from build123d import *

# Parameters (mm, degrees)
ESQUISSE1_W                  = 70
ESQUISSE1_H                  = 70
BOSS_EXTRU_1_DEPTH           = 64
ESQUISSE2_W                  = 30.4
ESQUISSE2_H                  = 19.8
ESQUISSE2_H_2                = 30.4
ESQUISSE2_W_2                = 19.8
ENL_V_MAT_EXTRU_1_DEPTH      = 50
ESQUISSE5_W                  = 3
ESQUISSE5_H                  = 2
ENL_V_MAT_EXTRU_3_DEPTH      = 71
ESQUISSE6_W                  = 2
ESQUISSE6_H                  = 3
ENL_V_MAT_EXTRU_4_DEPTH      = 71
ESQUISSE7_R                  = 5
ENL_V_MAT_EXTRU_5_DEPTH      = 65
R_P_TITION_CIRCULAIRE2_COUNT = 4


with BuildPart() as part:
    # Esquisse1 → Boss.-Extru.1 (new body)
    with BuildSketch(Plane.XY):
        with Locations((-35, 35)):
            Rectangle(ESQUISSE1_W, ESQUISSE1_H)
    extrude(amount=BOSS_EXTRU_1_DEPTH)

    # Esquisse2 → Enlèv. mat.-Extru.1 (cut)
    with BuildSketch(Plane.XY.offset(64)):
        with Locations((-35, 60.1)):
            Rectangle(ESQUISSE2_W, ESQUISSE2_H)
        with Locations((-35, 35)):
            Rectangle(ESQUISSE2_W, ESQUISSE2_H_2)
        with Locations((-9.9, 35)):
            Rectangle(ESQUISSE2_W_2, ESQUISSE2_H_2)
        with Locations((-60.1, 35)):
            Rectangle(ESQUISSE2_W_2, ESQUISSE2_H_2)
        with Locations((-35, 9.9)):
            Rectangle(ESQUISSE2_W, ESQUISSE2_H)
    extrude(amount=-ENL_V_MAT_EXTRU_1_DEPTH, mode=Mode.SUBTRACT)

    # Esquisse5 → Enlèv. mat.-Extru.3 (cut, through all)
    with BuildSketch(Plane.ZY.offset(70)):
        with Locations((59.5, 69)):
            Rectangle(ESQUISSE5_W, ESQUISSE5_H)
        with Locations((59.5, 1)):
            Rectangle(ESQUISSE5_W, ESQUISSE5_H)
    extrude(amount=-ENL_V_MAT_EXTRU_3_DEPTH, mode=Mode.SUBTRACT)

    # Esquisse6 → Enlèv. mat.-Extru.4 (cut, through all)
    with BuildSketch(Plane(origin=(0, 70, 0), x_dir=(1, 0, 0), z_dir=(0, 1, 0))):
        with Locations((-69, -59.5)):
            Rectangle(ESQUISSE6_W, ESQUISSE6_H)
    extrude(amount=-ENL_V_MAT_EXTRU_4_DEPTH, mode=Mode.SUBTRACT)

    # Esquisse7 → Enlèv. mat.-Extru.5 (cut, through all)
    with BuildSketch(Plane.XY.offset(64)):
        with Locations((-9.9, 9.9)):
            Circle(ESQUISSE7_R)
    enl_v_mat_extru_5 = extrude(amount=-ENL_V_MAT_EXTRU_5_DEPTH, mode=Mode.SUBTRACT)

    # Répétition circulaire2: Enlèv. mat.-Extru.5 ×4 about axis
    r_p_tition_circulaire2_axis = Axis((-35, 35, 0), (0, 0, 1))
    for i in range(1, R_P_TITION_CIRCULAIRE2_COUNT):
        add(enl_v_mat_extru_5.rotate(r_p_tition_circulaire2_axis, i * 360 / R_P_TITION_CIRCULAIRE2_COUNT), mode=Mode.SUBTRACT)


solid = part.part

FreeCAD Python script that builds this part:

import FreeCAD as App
import Part
import Sketcher
from FreeCAD import Vector


def add_polygon(sketch, points):
    """Adds a closed chain of lines whose ends are joined by coincident constraints."""
    first, n = sketch.GeometryCount, len(points)
    for a, b in zip(points, points[1:] + points[:1]):
        sketch.addGeometry(Part.LineSegment(App.Vector(*a, 0), App.Vector(*b, 0)), False)
    for i in range(n):
        sketch.addConstraint(Sketcher.Constraint("Coincident", first + i, 2, first + (i + 1) % n, 1))

doc = App.newDocument("Part")
body = doc.addObject("PartDesign::Body", "Body")

# Sketch on XY plane
sketch1 = doc.addObject("Sketcher::SketchObject", "Sketch")
body.addObject(sketch1)
sketch1.AttachmentSupport = (doc.XY_Plane, [""])
sketch1.MapMode = "FlatFace"
add_polygon(sketch1, [(-70, 70), (-70, 0), (0, 0), (0, 70)])  # lines 0-3
sketch1.addConstraint([
    Sketcher.Constraint("Vertical", 0),
    Sketcher.Constraint("Horizontal", 1),
    Sketcher.Constraint("Vertical", 2),
    Sketcher.Constraint("Horizontal", 3),
    Sketcher.Constraint("Coincident", 1, 2, -1, 1),
    Sketcher.Constraint("Equal", 3, 0),
    Sketcher.Constraint("DistanceX", 1, 1, 1, 2, 70.0),
])
pad1 = doc.addObject("PartDesign::Pad", "Pad")
body.addObject(pad1)
pad1.Profile = sketch1
pad1.Length = 64

# Sketch on XY plane
sketch2 = doc.addObject("Sketcher::SketchObject", "Sketch001")
body.addObject(sketch2)
sketch2.AttachmentSupport = (doc.XY_Plane, [""])
sketch2.MapMode = "FlatFace"
sketch2.AttachmentOffset = App.Placement(Vector(0, 0, 64), App.Rotation())
add_polygon(sketch2, [(-50.2, 70), (-50.2, 50.2), (-70, 50.2), (-70, 19.8), (-50.2, 19.8), (-50.2, 0), (-19.8, 0), (-19.8, 19.8), (0, 19.8), (0, 50.2), (-19.8, 50.2), (-19.8, 70)])  # lines 0-11
sketch2.addConstraint([
    Sketcher.Constraint("Vertical", 0),
    Sketcher.Constraint("Horizontal", 1),
    Sketcher.Constraint("Vertical", 2),
    Sketcher.Constraint("Horizontal", 3),
    Sketcher.Constraint("Vertical", 4),
    Sketcher.Constraint("Horizontal", 5),
    Sketcher.Constraint("Vertical", 6),
    Sketcher.Constraint("Horizontal", 7),
    Sketcher.Constraint("Vertical", 8),
    Sketcher.Constraint("Horizontal", 9),
    Sketcher.Constraint("Vertical", 10),
    Sketcher.Constraint("Horizontal", 11),
    Sketcher.Constraint("PointOnObject", 4, 2, -1),
    Sketcher.Constraint("PointOnObject", 7, 2, -2),
    Sketcher.Constraint("Horizontal", 3, 2, 6, 2),
    Sketcher.Constraint("Horizontal", 1, 2, 8, 2),
    Sketcher.Constraint("Vertical", 0, 2, 3, 2),
    Sketcher.Constraint("Vertical", 6, 2, 9, 2),
    Sketcher.Constraint("Equal", 3, 7),
    Sketcher.Constraint("Equal", 9, 0),
    Sketcher.Constraint("Equal", 11, 2),
    Sketcher.Constraint("Equal", 0, 4),
    Sketcher.Constraint("DistanceX", 1, 2, 1, 1, 19.8),
    Sketcher.Constraint("DistanceX", 5, 1, 5, 2, 30.4),
])
pocket1 = doc.addObject("PartDesign::Pocket", "Pocket")
body.addObject(pocket1)
pocket1.Profile = sketch2
pocket1.Length = 50

# Sketch on YZ plane
sketch3 = doc.addObject("Sketcher::SketchObject", "Sketch002")
body.addObject(sketch3)
sketch3.AttachmentSupport = (doc.YZ_Plane, [""])
sketch3.MapMode = "FlatFace"
sketch3.AttachmentOffset = App.Placement(Vector(0, 0, -70), App.Rotation())
add_polygon(sketch3, [(70, 58), (68, 58), (68, 61), (70, 61)])  # lines 0-3
add_polygon(sketch3, [(2, 58), (0, 58), (0, 61), (2, 61)])  # lines 4-7
sketch3.addConstraint([
    Sketcher.Constraint("Horizontal", 0),
    Sketcher.Constraint("Vertical", 1),
    Sketcher.Constraint("Horizontal", 2),
    Sketcher.Constraint("Vertical", 3),
    Sketcher.Constraint("Horizontal", 4),
    Sketcher.Constraint("Vertical", 5),
    Sketcher.Constraint("Horizontal", 6),
    Sketcher.Constraint("Vertical", 7),
    Sketcher.Constraint("PointOnObject", 4, 2, -2),
    Sketcher.Constraint("Horizontal", 3, 2, 4, 2),
    Sketcher.Constraint("Horizontal", 2, 2, 5, 2),
    Sketcher.Constraint("Equal", 2, 4),
    Sketcher.Constraint("DistanceX", 0, 2, 0, 1, 2.0),
    Sketcher.Constraint("DistanceY", 1, 1, 1, 2, 3.0),
    Sketcher.Constraint("DistanceX", -1, 1, 0, 2, 68.0),
    Sketcher.Constraint("DistanceY", -1, 1, 0, 2, 58.0),
])
pocket2 = doc.addObject("PartDesign::Pocket", "Pocket001")
body.addObject(pocket2)
pocket2.Profile = sketch3
pocket2.Type = "ThroughAll"
pocket2.Reversed = True

# Sketch on XZ plane
sketch4 = doc.addObject("Sketcher::SketchObject", "Sketch003")
body.addObject(sketch4)
sketch4.AttachmentSupport = (doc.XZ_Plane, [""])
sketch4.MapMode = "FlatFace"
sketch4.AttachmentOffset = App.Placement(Vector(0, 0, -70), App.Rotation())
add_polygon(sketch4, [(-70, 58), (-70, 61), (-68, 61), (-68, 58)])  # lines 0-3
sketch4.addConstraint([
    Sketcher.Constraint("Vertical", 0),
    Sketcher.Constraint("Horizontal", 1),
    Sketcher.Constraint("Vertical", 2),
    Sketcher.Constraint("Horizontal", 3),
    Sketcher.Constraint("DistanceX", 1, 1, 1, 2, 2.0),
    Sketcher.Constraint("DistanceY", 0, 1, 0, 2, 3.0),
    Sketcher.Constraint("DistanceX", 0, 2, -1, 1, 70.0),
    Sketcher.Constraint("DistanceY", -1, 1, 0, 2, 61.0),
])
pocket3 = doc.addObject("PartDesign::Pocket", "Pocket002")
body.addObject(pocket3)
pocket3.Profile = sketch4
pocket3.Type = "ThroughAll"
pocket3.Reversed = True

# Sketch on XY plane
sketch5 = doc.addObject("Sketcher::SketchObject", "Sketch004")
body.addObject(sketch5)
sketch5.AttachmentSupport = (doc.XY_Plane, [""])
sketch5.MapMode = "FlatFace"
sketch5.AttachmentOffset = App.Placement(Vector(0, 0, 64), App.Rotation())
sketch5.addGeometry(Part.Circle(Vector(-9.9, 9.9, 0), Vector(0, 0, 1), 5), False)
sketch5.addConstraint([
    Sketcher.Constraint("Diameter", 0, 10.0),
    Sketcher.Constraint("DistanceX", 0, 3, -1, 1, 9.9),
    Sketcher.Constraint("DistanceY", -1, 1, 0, 3, 9.9),
])
pocket4 = doc.addObject("PartDesign::Pocket", "Pocket003")
body.addObject(pocket4)
pocket4.Profile = sketch5
pocket4.Type = "ThroughAll"
doc.recompute()

datumline = doc.addObject("PartDesign::Line", "DatumLine")
body.addObject(datumline)
datumline.Placement = App.Placement(Vector(-35, 35, 0), App.Rotation(Vector(0, 0, 1), Vector(0, 0, 1)))
polarpattern = doc.addObject("PartDesign::PolarPattern", "PolarPattern")
body.addObject(polarpattern)
polarpattern.Originals = [pocket4]
polarpattern.Axis = (datumline, [""])
polarpattern.Angle = 360
polarpattern.Occurrences = 4
body.Tip = polarpattern

doc.recompute()
